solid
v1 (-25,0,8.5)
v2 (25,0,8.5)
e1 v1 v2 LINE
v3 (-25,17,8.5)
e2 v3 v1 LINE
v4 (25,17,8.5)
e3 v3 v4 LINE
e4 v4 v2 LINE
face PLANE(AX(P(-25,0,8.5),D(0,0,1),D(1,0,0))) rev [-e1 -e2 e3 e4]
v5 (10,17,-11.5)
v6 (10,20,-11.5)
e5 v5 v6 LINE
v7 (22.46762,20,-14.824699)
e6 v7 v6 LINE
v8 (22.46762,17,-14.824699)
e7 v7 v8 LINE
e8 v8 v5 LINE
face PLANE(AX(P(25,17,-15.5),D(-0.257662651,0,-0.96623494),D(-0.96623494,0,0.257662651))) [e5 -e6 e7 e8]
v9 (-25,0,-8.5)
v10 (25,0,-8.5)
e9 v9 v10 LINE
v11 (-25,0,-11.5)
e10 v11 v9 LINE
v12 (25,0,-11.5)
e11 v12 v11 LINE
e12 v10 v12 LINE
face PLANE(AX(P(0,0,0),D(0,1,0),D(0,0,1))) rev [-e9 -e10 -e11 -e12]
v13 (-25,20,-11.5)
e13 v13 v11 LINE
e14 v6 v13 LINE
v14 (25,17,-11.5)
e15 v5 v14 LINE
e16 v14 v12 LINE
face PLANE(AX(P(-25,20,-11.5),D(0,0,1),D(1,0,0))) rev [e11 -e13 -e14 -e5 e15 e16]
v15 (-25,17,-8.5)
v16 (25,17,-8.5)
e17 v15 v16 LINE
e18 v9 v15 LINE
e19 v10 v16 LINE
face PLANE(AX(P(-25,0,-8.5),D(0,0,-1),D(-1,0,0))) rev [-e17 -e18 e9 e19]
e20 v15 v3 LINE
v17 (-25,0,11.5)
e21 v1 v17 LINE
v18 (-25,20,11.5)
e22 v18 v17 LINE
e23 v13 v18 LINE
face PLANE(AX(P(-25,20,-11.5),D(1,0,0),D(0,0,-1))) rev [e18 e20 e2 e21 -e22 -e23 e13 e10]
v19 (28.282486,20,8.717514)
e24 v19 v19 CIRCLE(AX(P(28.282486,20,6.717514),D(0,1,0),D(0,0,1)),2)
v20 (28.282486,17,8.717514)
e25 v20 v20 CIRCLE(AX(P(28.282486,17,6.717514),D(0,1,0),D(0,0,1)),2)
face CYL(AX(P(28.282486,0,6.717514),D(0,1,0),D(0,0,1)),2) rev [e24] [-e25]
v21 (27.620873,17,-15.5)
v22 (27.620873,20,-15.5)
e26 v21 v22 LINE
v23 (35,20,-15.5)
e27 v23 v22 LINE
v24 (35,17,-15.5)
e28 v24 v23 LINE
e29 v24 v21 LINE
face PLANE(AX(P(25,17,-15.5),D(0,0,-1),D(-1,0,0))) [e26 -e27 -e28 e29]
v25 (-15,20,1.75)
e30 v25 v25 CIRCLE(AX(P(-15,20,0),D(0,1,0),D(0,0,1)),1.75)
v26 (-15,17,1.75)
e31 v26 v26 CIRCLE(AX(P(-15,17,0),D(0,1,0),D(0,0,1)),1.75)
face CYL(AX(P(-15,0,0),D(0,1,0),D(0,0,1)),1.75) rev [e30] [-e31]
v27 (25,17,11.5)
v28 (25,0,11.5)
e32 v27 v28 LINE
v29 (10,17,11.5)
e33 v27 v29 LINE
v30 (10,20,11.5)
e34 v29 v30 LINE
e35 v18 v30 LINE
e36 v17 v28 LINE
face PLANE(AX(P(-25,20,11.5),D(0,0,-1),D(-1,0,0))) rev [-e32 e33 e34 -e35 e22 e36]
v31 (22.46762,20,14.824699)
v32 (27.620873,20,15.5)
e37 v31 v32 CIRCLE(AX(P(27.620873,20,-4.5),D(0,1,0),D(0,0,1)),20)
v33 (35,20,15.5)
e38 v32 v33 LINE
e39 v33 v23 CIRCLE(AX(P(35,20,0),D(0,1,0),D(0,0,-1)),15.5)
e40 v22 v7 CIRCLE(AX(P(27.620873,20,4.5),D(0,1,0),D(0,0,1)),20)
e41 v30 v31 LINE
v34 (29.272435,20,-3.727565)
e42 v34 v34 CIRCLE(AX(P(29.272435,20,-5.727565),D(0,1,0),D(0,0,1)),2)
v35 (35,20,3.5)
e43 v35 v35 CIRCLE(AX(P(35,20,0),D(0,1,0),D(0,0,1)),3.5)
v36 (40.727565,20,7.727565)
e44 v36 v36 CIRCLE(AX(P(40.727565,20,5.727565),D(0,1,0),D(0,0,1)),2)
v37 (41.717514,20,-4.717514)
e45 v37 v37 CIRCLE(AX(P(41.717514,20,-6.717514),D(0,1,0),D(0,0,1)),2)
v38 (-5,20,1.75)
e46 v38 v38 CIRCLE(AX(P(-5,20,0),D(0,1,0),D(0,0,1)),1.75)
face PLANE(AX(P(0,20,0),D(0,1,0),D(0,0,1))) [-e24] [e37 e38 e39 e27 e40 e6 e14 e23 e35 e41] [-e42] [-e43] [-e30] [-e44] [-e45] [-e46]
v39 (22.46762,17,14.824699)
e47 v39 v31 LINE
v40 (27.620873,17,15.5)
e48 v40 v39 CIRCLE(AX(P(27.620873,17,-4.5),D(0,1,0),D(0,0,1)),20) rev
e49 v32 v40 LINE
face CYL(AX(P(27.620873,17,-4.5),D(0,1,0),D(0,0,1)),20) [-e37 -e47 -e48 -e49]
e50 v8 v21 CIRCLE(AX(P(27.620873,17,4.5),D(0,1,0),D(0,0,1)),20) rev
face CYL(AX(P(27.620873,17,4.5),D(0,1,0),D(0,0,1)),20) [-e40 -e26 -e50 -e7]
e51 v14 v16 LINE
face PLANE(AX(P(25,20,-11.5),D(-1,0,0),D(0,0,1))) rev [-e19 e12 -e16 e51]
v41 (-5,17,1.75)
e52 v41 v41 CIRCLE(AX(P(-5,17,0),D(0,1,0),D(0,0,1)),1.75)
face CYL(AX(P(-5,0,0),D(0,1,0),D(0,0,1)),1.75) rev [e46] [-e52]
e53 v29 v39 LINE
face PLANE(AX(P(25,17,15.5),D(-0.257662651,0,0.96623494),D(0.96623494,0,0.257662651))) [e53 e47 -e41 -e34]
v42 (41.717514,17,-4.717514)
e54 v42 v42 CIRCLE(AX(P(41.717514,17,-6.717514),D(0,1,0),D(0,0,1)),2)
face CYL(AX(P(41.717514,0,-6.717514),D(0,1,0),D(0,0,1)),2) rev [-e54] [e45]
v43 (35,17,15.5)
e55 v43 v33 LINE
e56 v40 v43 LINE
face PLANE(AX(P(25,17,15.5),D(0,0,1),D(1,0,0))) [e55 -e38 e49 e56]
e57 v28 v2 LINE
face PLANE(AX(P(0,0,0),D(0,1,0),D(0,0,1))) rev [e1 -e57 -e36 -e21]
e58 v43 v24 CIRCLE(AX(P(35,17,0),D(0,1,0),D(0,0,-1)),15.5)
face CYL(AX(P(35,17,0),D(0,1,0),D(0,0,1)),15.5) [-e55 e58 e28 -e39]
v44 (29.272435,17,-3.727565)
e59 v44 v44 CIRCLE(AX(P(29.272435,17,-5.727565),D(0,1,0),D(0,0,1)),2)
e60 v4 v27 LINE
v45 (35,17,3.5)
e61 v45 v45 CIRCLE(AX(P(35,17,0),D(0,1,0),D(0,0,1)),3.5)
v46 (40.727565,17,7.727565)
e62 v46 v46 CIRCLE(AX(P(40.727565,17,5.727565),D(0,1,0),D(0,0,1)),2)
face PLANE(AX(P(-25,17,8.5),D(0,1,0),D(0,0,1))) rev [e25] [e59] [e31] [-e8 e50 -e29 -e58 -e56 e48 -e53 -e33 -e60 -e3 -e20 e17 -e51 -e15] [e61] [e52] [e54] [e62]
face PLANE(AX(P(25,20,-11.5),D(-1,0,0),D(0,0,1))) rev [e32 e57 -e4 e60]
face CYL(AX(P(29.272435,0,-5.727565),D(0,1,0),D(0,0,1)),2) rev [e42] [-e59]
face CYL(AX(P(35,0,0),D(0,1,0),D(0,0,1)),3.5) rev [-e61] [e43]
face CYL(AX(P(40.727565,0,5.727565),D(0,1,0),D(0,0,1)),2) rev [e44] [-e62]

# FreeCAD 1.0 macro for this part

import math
import FreeCAD as App
import Part
import Sketcher

V = App.Vector
Q = App.Units.Quantity


def edges_at(feature, points):
    """Names of the edges that pass closest to the given points."""
    edges = feature.Shape.Edges
    near = lambda p: min(range(len(edges)), key=lambda i: edges[i].distToShape(Part.Vertex(*p))[0])
    return sorted({f"Edge{near(p) + 1}" for p in points})


def add_polygon(sketch, points):
    """Adds a closed chain of lines whose ends are joined by coincident constraints."""
    first, n = sketch.GeometryCount, len(points)
    for a, b in zip(points, points[1:] + points[:1]):
        sketch.addGeometry(Part.LineSegment(App.Vector(*a, 0), App.Vector(*b, 0)), False)
    for i in range(n):
        sketch.addConstraint(Sketcher.Constraint("Coincident", first + i, 2, first + (i + 1) % n, 1))

doc = App.newDocument("Part")
body = doc.addObject("PartDesign::Body", "Body")

# Sketch on XZ plane
sketch1 = doc.addObject("Sketcher::SketchObject", "Sketch")
body.addObject(sketch1)
sketch1.AttachmentSupport = (doc.XZ_Plane, [""])
sketch1.MapMode = "FlatFace"
add_polygon(sketch1, [(-25, -11.5), (-25, 11.5), (25, 11.5), (25, -11.5)])  # lines 0-3
sketch1.addConstraint(Sketcher.Constraint("Vertical", 0))
sketch1.addConstraint(Sketcher.Constraint("Horizontal", 1))
sketch1.addConstraint(Sketcher.Constraint("Vertical", 2))
sketch1.addConstraint(Sketcher.Constraint("Horizontal", 3))
sketch1.addConstraint(Sketcher.Constraint("Symmetric", 0, 2, 2, 2, -1, 1))
sketch1.addConstraint(Sketcher.Constraint("DistanceX", 1, 1, 1, 2, Q("50 mm")))
sketch1.addConstraint(Sketcher.Constraint("DistanceY", 0, 1, 0, 2, Q("23 mm")))
pad1 = doc.addObject("PartDesign::Pad", "Pad")
body.addObject(pad1)
pad1.Profile = sketch1
pad1.Length = 20
pad1.Reversed = True

# Sketch on YZ plane
sketch2 = doc.addObject("Sketcher::SketchObject", "Sketch001")
body.addObject(sketch2)
sketch2.AttachmentSupport = (doc.YZ_Plane, [""])
sketch2.MapMode = "FlatFace"
sketch2.AttachmentOffset = App.Placement(V(0, 0, 25), App.Rotation())
add_polygon(sketch2, [(17, 8.5), (0, 8.5), (0, -8.5), (17, -8.5)])  # lines 0-3
sketch2.addConstraint(Sketcher.Constraint("Horizontal", 0))
sketch2.addConstraint(Sketcher.Constraint("Vertical", 1))
sketch2.addConstraint(Sketcher.Constraint("Horizontal", 2))
sketch2.addConstraint(Sketcher.Constraint("Vertical", 3))
sketch2.addConstraint(Sketcher.Constraint("Symmetric", 0, 2, 1, 2, -1, 1))
sketch2.addConstraint(Sketcher.Constraint("Equal", 2, 1))
sketch2.addConstraint(Sketcher.Constraint("DistanceX", 0, 2, 0, 1, Q("17 mm")))
pocket1 = doc.addObject("PartDesign::Pocket", "Pocket")
body.addObject(pocket1)
pocket1.Profile = sketch2
pocket1.Type = "ThroughAll"

# Sketch on XZ plane
sketch3 = doc.addObject("Sketcher::SketchObject", "Sketch002")
body.addObject(sketch3)
sketch3.AttachmentSupport = (doc.XZ_Plane, [""])
sketch3.MapMode = "FlatFace"
sketch3.AttachmentOffset = App.Placement(V(0, 0, -20), App.Rotation())
sketch3.addGeometry(Part.LineSegment(V(35, -15.5, 0), V(25, -15.5, 0)), False)
sketch3.addGeometry(Part.LineSegment(V(25, -15.5, 0), V(10, -11.5, 0)), False)
sketch3.addGeometry(Part.LineSegment(V(10, -11.5, 0), V(25, -11.5, 0)), False)
sketch3.addGeometry(Part.LineSegment(V(25, -11.5, 0), V(25, 11.5, 0)), False)
sketch3.addGeometry(Part.LineSegment(V(25, 11.5, 0), V(10, 11.5, 0)), False)
sketch3.addGeometry(Part.LineSegment(V(10, 11.5, 0), V(25, 15.5, 0)), False)
sketch3.addGeometry(Part.LineSegment(V(25, 15.5, 0), V(35, 15.5, 0)), False)
sketch3.addGeometry(Part.ArcOfCircle(Part.Circle(V(35, 0, 0), V(0, 0, 1), 15.5), math.radians(-90), math.radians(90)), False)
sketch3.addConstraint(Sketcher.Constraint("Coincident", 0, 2, 1, 1))
sketch3.addConstraint(Sketcher.Constraint("Coincident", 1, 2, 2, 1))
sketch3.addConstraint(Sketcher.Constraint("Coincident", 2, 2, 3, 1))
sketch3.addConstraint(Sketcher.Constraint("Coincident", 3, 2, 4, 1))
sketch3.addConstraint(Sketcher.Constraint("Coincident", 4, 2, 5, 1))
sketch3.addConstraint(Sketcher.Constraint("Coincident", 5, 2, 6, 1))
sketch3.addConstraint(Sketcher.Constraint("Tangent", 6, 2, 7, 2))
sketch3.addConstraint(Sketcher.Constraint("Tangent", 7, 1, 0, 1))
sketch3.addConstraint(Sketcher.Constraint("Horizontal", 0))
sketch3.addConstraint(Sketcher.Constraint("Horizontal", 2))
sketch3.addConstraint(Sketcher.Constraint("Vertical", 3))
sketch3.addConstraint(Sketcher.Constraint("Horizontal", 4))
sketch3.addConstraint(Sketcher.Constraint("Horizontal", 6))
sketch3.addConstraint(Sketcher.Constraint("Symmetric", 1, 2, 4, 2, -1))
sketch3.addConstraint(Sketcher.Constraint("Symmetric", 0, 2, 5, 2, -1))
sketch3.addConstraint(Sketcher.Constraint("Vertical", 0, 2, 2, 2))
sketch3.addConstraint(Sketcher.Constraint("Radius", 7, Q("15.5 mm")))
sketch3.addConstraint(Sketcher.Constraint("DistanceX", 0, 2, 0, 1, Q("10 mm")))
sketch3.addConstraint(Sketcher.Constraint("DistanceX", 2, 1, 2, 2, Q("15 mm")))
sketch3.addConstraint(Sketcher.Constraint("DistanceY", 3, 1, 3, 2, Q("23 mm")))
sketch3.addConstraint(Sketcher.Constraint("DistanceX", -1, 1, 7, 3, Q("35 mm")))
pad2 = doc.addObject("PartDesign::Pad", "Pad001")
body.addObject(pad2)
pad2.Profile = sketch3
pad2.Length = 3

# Sketch on XZ plane
sketch4 = doc.addObject("Sketcher::SketchObject", "Sketch003")
body.addObject(sketch4)
sketch4.AttachmentSupport = (doc.XZ_Plane, [""])
sketch4.MapMode = "FlatFace"
sketch4.AttachmentOffset = App.Placement(V(0, 0, -20), App.Rotation())
sketch4.addGeometry(Part.Circle(V(-15, 0, 0), V(0, 0, 1), 1.75), False)
sketch4.addGeometry(Part.Circle(V(-5, 0, 0), V(0, 0, 1), 1.75), False)
sketch4.addGeometry(Part.Circle(V(35, 0, 0), V(0, 0, 1), 3.5), False)
sketch4.addGeometry(Part.Circle(V(28.282486, 6.717514, 0), V(0, 0, 1), 2), False)
sketch4.addGeometry(Part.Circle(V(41.717514, -6.717514, 0), V(0, 0, 1), 2), False)
sketch4.addGeometry(Part.Circle(V(40.727565, 5.727565, 0), V(0, 0, 1), 2), False)
sketch4.addGeometry(Part.Circle(V(29.272435, -5.727565, 0), V(0, 0, 1), 2), False)
sketch4.addConstraint(Sketcher.Constraint("Equal", 0, 1))
sketch4.addConstraint(Sketcher.Constraint("Equal", 3, 4))
sketch4.addConstraint(Sketcher.Constraint("Equal", 4, 5))
sketch4.addConstraint(Sketcher.Constraint("Equal", 5, 6))
sketch4.addConstraint(Sketcher.Constraint("PointOnObject", 0, 3, -1))
sketch4.addConstraint(Sketcher.Constraint("PointOnObject", 1, 3, -1))
sketch4.addConstraint(Sketcher.Constraint("PointOnObject", 2, 3, -1))
sketch4.addConstraint(Sketcher.Constraint("Diameter", 2, Q("7 mm")))
sketch4.addConstraint(Sketcher.Constraint("Diameter", 3, Q("4 mm")))
sketch4.addConstraint(Sketcher.Constraint("Diameter", 0, Q("3.5 mm")))
sketch4.addConstraint(Sketcher.Constraint("DistanceX", 0, 3, -1, 1, Q("15 mm")))
sketch4.addConstraint(Sketcher.Constraint("DistanceX", 1, 3, -1, 1, Q("5 mm")))
sketch4.addConstraint(Sketcher.Constraint("DistanceX", -1, 1, 2, 3, Q("35 mm")))
sketch4.addConstraint(Sketcher.Constraint("DistanceX", 3, 3, 4, 3, Q("13.435029 mm")))
sketch4.addConstraint(Sketcher.Constraint("DistanceY", 4, 3, 3, 3, Q("13.435029 mm")))
sketch4.addConstraint(Sketcher.Constraint("DistanceX", 3, 3, 5, 3, Q("12.445079 mm")))
sketch4.addConstraint(Sketcher.Constraint("DistanceY", 5, 3, 3, 3, Q("0.989949 mm")))
sketch4.addConstraint(Sketcher.Constraint("DistanceX", 6, 3, 4, 3, Q("12.445079 mm")))
sketch4.addConstraint(Sketcher.Constraint("DistanceY", 4, 3, 6, 3, Q("0.989949 mm")))
sketch4.addConstraint(Sketcher.Constraint("DistanceX", -1, 1, 3, 3, Q("28.282486 mm")))
sketch4.addConstraint(Sketcher.Constraint("DistanceY", -1, 1, 3, 3, Q("6.717514 mm")))
pocket2 = doc.addObject("PartDesign::Pocket", "Pocket001")
body.addObject(pocket2)
pocket2.Profile = sketch4
pocket2.Type = "ThroughAll"
pocket2.Reversed = True
doc.recompute()

fillet = doc.addObject("PartDesign::Fillet", "Fillet")
body.addObject(fillet)
fillet.Base = (pocket2, edges_at(pocket2, [(25, 18.5, -15.5), (25, 18.5, 15.5)]))
fillet.Radius = 20

doc.recompute()
